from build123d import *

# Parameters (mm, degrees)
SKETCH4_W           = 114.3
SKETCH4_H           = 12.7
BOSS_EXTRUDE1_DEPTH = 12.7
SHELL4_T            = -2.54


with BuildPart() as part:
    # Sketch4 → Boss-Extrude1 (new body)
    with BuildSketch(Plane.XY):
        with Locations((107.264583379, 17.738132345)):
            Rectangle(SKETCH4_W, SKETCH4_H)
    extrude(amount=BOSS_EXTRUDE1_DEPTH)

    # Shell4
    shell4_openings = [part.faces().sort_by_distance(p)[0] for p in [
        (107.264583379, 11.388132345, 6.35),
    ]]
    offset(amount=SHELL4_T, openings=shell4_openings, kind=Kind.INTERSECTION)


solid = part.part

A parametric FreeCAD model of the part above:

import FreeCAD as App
import Part
import Sketcher
Q = App.Units.Quantity


def faces_at(feature, points):
    """Names of the faces that lie closest to the given points."""
    faces = feature.Shape.Faces
    near = lambda p: min(range(len(faces)), key=lambda i: faces[i].distToShape(Part.Vertex(*p))[0])
    return sorted({f"Face{near(p) + 1}" for p in points})

doc = App.newDocument("Part")
body = doc.addObject("PartDesign::Body", "Body")

# Sketch on XY plane
sketch1 = body.newObject("Sketcher::SketchObject", "Sketch")
sketch1.AttachmentSupport = (doc.getObject("XY_Plane"), [""])
sketch1.MapMode = "FlatFace"
sketch1.addGeometry(Part.LineSegment(App.Vector(50, 24, 0), App.Vector(50, 11, 0)), False)
sketch1.addGeometry(Part.LineSegment(App.Vector(50, 11, 0), App.Vector(164, 11, 0)), False)
sketch1.addGeometry(Part.LineSegment(App.Vector(164, 11, 0), App.Vector(164, 24, 0)), False)
sketch1.addGeometry(Part.LineSegment(App.Vector(164, 24, 0), App.Vector(50, 24, 0)), False)
sketch1.addConstraint(Sketcher.Constraint("Coincident", 0, 2, 1, 1))
sketch1.addConstraint(Sketcher.Constraint("Coincident", 1, 2, 2, 1))
sketch1.addConstraint(Sketcher.Constraint("Coincident", 2, 2, 3, 1))
sketch1.addConstraint(Sketcher.Constraint("Coincident", 3, 2, 0, 1))
sketch1.addConstraint(Sketcher.Constraint("Vertical", 0))
sketch1.addConstraint(Sketcher.Constraint("Horizontal", 1))
sketch1.addConstraint(Sketcher.Constraint("Vertical", 2))
sketch1.addConstraint(Sketcher.Constraint("Horizontal", 3))
sketch1.addConstraint(Sketcher.Constraint("DistanceX", 1, 1, 1, 2, Q("4.5 in")))
sketch1.addConstraint(Sketcher.Constraint("DistanceY", 0, 2, 0, 1, Q("0.5 in")))
sketch1.addConstraint(Sketcher.Constraint("DistanceX", -1, 1, 0, 2, 50.114583))
sketch1.addConstraint(Sketcher.Constraint("DistanceY", -1, 1, 0, 2, 11.388132))
pad1 = body.newObject("PartDesign::Pad", "Pad")
pad1.Profile = sketch1
pad1.Length = Q("0.5 in")
doc.recompute()

thickness = body.newObject("PartDesign::Thickness", "Thickness")
thickness.Base = (pad1, faces_at(pad1, [(107.265, 11.388, 6.35)]))
thickness.Value = Q("0.1 in")
thickness.Reversed = True
thickness.Join = "Intersection"

doc.recompute()
